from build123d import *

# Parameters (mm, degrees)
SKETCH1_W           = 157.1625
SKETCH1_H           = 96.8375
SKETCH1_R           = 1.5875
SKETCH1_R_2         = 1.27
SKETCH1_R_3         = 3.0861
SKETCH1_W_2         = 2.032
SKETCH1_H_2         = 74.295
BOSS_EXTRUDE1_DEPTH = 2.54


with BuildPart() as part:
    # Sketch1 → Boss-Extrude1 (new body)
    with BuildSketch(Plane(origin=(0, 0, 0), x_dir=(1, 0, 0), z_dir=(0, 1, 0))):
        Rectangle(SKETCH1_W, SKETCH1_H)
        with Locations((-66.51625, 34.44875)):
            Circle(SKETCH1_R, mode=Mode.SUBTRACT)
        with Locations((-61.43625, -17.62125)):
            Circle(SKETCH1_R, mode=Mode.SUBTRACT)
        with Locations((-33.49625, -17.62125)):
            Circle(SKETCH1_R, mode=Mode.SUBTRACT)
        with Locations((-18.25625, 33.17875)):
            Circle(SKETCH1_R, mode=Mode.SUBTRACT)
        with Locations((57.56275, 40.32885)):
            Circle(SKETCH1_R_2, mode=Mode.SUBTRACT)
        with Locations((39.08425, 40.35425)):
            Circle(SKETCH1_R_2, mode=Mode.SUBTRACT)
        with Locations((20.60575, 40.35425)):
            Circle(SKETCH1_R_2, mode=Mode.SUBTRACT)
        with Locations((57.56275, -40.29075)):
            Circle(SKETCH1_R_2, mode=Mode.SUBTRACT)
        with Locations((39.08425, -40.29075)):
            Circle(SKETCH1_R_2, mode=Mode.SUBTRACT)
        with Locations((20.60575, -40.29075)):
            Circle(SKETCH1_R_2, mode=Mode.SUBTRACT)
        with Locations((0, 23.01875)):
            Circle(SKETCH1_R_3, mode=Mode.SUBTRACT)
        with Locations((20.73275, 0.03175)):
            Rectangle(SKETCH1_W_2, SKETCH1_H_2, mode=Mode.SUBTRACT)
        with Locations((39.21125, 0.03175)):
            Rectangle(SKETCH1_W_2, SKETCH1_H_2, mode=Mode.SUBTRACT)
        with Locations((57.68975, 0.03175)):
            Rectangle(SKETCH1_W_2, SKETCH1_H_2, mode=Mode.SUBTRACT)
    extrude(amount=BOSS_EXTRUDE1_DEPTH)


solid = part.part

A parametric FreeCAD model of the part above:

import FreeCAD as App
import Part
import Sketcher

V = App.Vector
Q = App.Units.Quantity

doc = App.newDocument("Part")
body = doc.addObject("PartDesign::Body", "Body")

# Sketch on XZ plane
sketch1 = doc.addObject("Sketcher::SketchObject", "Sketch")
body.addObject(sketch1)
sketch1.AttachmentSupport = (doc.XZ_Plane, [""])
sketch1.MapMode = "FlatFace"
sketch1.addGeometry([
    Part.LineSegment(V(-78.6, -48.4, 0), V(-78.6, 48.4, 0)),  # 0
    Part.LineSegment(V(-78.6, 48.4, 0), V(78.6, 48.4, 0)),  # 1
    Part.LineSegment(V(78.6, 48.4, 0), V(78.6, -48.4, 0)),  # 2
    Part.LineSegment(V(78.6, -48.4, 0), V(-78.6, -48.4, 0)),  # 3
    Part.Circle(V(-61.4, 17.6, 0), V(0, 0, 1), 1.6),  # 4
    Part.Circle(V(-33.5, 17.6, 0), V(0, 0, 1), 1.6),  # 5
    Part.Circle(V(20.6, 40.3, 0), V(0, 0, 1), 1.3),  # 6
    Part.Circle(V(39.1, 40.3, 0), V(0, 0, 1), 1.3),  # 7
    Part.Circle(V(57.6, 40.3, 0), V(0, 0, 1), 1.3),  # 8
    Part.Circle(V(-66.5, -34.4, 0), V(0, 0, 1), 1.6),  # 9
    Part.Circle(V(-18.3, -33.2, 0), V(0, 0, 1), 1.6),  # 10
    Part.LineSegment(V(21.7, 37.1, 0), V(19.7, 37.1, 0)),  # 11
    Part.LineSegment(V(19.7, 37.1, 0), V(19.7, -37.2, 0)),  # 12
    Part.LineSegment(V(19.7, -37.2, 0), V(21.7, -37.2, 0)),  # 13
    Part.LineSegment(V(21.7, -37.2, 0), V(21.7, 37.1, 0)),  # 14
    Part.LineSegment(V(40.2, 37.1, 0), V(38.2, 37.1, 0)),  # 15
    Part.LineSegment(V(38.2, 37.1, 0), V(38.2, -37.2, 0)),  # 16
    Part.LineSegment(V(38.2, -37.2, 0), V(40.2, -37.2, 0)),  # 17
    Part.LineSegment(V(40.2, -37.2, 0), V(40.2, 37.1, 0)),  # 18
    Part.LineSegment(V(58.7, 37.1, 0), V(56.7, 37.1, 0)),  # 19
    Part.LineSegment(V(56.7, 37.1, 0), V(56.7, -37.2, 0)),  # 20
    Part.LineSegment(V(56.7, -37.2, 0), V(58.7, -37.2, 0)),  # 21
    Part.LineSegment(V(58.7, -37.2, 0), V(58.7, 37.1, 0)),  # 22
    Part.Circle(V(0, -23, 0), V(0, 0, 1), 3.1),  # 23
    Part.Circle(V(20.6, -40.4, 0), V(0, 0, 1), 1.3),  # 24
    Part.Circle(V(39.1, -40.4, 0), V(0, 0, 1), 1.3),  # 25
    Part.Circle(V(57.6, -40.3, 0), V(0, 0, 1), 1.3),  # 26
], False)
sketch1.addConstraint([
    Sketcher.Constraint("Coincident", 0, 2, 1, 1),
    Sketcher.Constraint("Coincident", 1, 2, 2, 1),
    Sketcher.Constraint("Coincident", 2, 2, 3, 1),
    Sketcher.Constraint("Coincident", 3, 2, 0, 1),
    Sketcher.Constraint("Coincident", 11, 2, 12, 1),
    Sketcher.Constraint("Coincident", 12, 2, 13, 1),
    Sketcher.Constraint("Coincident", 13, 2, 14, 1),
    Sketcher.Constraint("Coincident", 14, 2, 11, 1),
    Sketcher.Constraint("Coincident", 15, 2, 16, 1),
    Sketcher.Constraint("Coincident", 16, 2, 17, 1),
    Sketcher.Constraint("Coincident", 17, 2, 18, 1),
    Sketcher.Constraint("Coincident", 18, 2, 15, 1),
    Sketcher.Constraint("Coincident", 19, 2, 20, 1),
    Sketcher.Constraint("Coincident", 20, 2, 21, 1),
    Sketcher.Constraint("Coincident", 21, 2, 22, 1),
    Sketcher.Constraint("Coincident", 22, 2, 19, 1),
    Sketcher.Constraint("Vertical", 0),
    Sketcher.Constraint("Horizontal", 1),
    Sketcher.Constraint("Vertical", 2),
    Sketcher.Constraint("Horizontal", 3),
    Sketcher.Constraint("Horizontal", 11),
    Sketcher.Constraint("Vertical", 12),
    Sketcher.Constraint("Horizontal", 13),
    Sketcher.Constraint("Vertical", 14),
    Sketcher.Constraint("Horizontal", 15),
    Sketcher.Constraint("Vertical", 16),
    Sketcher.Constraint("Horizontal", 17),
    Sketcher.Constraint("Vertical", 18),
    Sketcher.Constraint("Horizontal", 19),
    Sketcher.Constraint("Vertical", 20),
    Sketcher.Constraint("Horizontal", 21),
    Sketcher.Constraint("Vertical", 22),
    Sketcher.Constraint("Equal", 4, 5),
    Sketcher.Constraint("Equal", 6, 7),
    Sketcher.Constraint("Equal", 7, 8),
    Sketcher.Constraint("Equal", 5, 9),
    Sketcher.Constraint("Equal", 9, 10),
    Sketcher.Constraint("Equal", 8, 24),
    Sketcher.Constraint("Equal", 24, 25),
    Sketcher.Constraint("Equal", 25, 26),
    Sketcher.Constraint("Symmetric", 0, 2, 2, 2, -1, 1),
    Sketcher.Constraint("PointOnObject", 23, 3, -2),
    Sketcher.Constraint("Horizontal", 4, 3, 5, 3),
    Sketcher.Constraint("Horizontal", 6, 3, 7, 3),
    Sketcher.Constraint("Horizontal", 7, 3, 8, 3),
    Sketcher.Constraint("Horizontal", 24, 3, 25, 3),
    Sketcher.Constraint("Horizontal", 14, 2, 15, 2),
    Sketcher.Constraint("Horizontal", 13, 2, 16, 2),
    Sketcher.Constraint("Horizontal", 18, 2, 19, 2),
    Sketcher.Constraint("Horizontal", 17, 2, 20, 2),
    Sketcher.Constraint("Vertical", 6, 3, 24, 3),
    Sketcher.Constraint("Vertical", 7, 3, 25, 3),
    Sketcher.Constraint("Vertical", 8, 3, 26, 3),
    Sketcher.Constraint("Equal", 13, 15),
    Sketcher.Constraint("Equal", 17, 19),
    Sketcher.Constraint("Diameter", 6, Q("0.1 in")),
    Sketcher.Constraint("Diameter", 4, Q("0.125 in")),
    Sketcher.Constraint("Diameter", 23, Q("0.243 in")),
    Sketcher.Constraint("DistanceY", 10, 3, 5, 3, Q("2 in")),
    Sketcher.Constraint("DistanceY", 2, 2, 23, 3, Q("1 in")),
    Sketcher.Constraint("DistanceX", 11, 2, 11, 1, Q("0.08 in")),
    Sketcher.Constraint("DistanceX", 4, 3, 5, 3, Q("1.1 in")),
    Sketcher.Constraint("DistanceX", 9, 3, 4, 3, Q("0.2 in")),
    Sketcher.Constraint("DistanceX", 9, 3, 10, 3, Q("1.9 in")),
    Sketcher.Constraint("DistanceY", 10, 3, 23, 3, Q("0.4 in")),
    Sketcher.Constraint("DistanceX", 1, 1, 1, 2, Q("6.1875 in")),
    Sketcher.Constraint("DistanceY", 0, 1, 0, 2, Q("3.8125 in")),
    Sketcher.Constraint("DistanceY", 12, 2, 12, 1, Q("2.925 in")),
    Sketcher.Constraint("DistanceX", 5, 3, 6, 3, Q("2.13 in")),
    Sketcher.Constraint("DistanceY", 9, 3, 4, 3, Q("2.05 in")),
    Sketcher.Constraint("DistanceY", 6, 3, 0, 2, Q("0.32 in")),
    Sketcher.Constraint("DistanceX", 11, 2, 8, 3, Q("1.49 in")),
    Sketcher.Constraint("DistanceX", 10, 3, -1, 1, Q("0.71875 in")),
    Sketcher.Constraint("DistanceX", 6, 3, 8, 3, Q("1.455 in")),
    Sketcher.Constraint("DistanceY", 24, 3, 6, 3, Q("3.175 in")),
    Sketcher.Constraint("DistanceY", 25, 3, 26, 3, Q("0.001 in")),
    Sketcher.Constraint("DistanceX", 7, 3, 1, 2, Q("1.555 in")),
    Sketcher.Constraint("DistanceY", 11, 2, 6, 3, Q("0.125 in")),
    Sketcher.Constraint("DistanceX", 15, 2, 7, 3, Q("0.035 in")),
    Sketcher.Constraint("DistanceX", 19, 2, 8, 3, Q("0.035 in")),
])
pad1 = doc.addObject("PartDesign::Pad", "Pad")
body.addObject(pad1)
pad1.Profile = sketch1
pad1.Length = Q("0.1 in")
pad1.Reversed = True

doc.recompute()
